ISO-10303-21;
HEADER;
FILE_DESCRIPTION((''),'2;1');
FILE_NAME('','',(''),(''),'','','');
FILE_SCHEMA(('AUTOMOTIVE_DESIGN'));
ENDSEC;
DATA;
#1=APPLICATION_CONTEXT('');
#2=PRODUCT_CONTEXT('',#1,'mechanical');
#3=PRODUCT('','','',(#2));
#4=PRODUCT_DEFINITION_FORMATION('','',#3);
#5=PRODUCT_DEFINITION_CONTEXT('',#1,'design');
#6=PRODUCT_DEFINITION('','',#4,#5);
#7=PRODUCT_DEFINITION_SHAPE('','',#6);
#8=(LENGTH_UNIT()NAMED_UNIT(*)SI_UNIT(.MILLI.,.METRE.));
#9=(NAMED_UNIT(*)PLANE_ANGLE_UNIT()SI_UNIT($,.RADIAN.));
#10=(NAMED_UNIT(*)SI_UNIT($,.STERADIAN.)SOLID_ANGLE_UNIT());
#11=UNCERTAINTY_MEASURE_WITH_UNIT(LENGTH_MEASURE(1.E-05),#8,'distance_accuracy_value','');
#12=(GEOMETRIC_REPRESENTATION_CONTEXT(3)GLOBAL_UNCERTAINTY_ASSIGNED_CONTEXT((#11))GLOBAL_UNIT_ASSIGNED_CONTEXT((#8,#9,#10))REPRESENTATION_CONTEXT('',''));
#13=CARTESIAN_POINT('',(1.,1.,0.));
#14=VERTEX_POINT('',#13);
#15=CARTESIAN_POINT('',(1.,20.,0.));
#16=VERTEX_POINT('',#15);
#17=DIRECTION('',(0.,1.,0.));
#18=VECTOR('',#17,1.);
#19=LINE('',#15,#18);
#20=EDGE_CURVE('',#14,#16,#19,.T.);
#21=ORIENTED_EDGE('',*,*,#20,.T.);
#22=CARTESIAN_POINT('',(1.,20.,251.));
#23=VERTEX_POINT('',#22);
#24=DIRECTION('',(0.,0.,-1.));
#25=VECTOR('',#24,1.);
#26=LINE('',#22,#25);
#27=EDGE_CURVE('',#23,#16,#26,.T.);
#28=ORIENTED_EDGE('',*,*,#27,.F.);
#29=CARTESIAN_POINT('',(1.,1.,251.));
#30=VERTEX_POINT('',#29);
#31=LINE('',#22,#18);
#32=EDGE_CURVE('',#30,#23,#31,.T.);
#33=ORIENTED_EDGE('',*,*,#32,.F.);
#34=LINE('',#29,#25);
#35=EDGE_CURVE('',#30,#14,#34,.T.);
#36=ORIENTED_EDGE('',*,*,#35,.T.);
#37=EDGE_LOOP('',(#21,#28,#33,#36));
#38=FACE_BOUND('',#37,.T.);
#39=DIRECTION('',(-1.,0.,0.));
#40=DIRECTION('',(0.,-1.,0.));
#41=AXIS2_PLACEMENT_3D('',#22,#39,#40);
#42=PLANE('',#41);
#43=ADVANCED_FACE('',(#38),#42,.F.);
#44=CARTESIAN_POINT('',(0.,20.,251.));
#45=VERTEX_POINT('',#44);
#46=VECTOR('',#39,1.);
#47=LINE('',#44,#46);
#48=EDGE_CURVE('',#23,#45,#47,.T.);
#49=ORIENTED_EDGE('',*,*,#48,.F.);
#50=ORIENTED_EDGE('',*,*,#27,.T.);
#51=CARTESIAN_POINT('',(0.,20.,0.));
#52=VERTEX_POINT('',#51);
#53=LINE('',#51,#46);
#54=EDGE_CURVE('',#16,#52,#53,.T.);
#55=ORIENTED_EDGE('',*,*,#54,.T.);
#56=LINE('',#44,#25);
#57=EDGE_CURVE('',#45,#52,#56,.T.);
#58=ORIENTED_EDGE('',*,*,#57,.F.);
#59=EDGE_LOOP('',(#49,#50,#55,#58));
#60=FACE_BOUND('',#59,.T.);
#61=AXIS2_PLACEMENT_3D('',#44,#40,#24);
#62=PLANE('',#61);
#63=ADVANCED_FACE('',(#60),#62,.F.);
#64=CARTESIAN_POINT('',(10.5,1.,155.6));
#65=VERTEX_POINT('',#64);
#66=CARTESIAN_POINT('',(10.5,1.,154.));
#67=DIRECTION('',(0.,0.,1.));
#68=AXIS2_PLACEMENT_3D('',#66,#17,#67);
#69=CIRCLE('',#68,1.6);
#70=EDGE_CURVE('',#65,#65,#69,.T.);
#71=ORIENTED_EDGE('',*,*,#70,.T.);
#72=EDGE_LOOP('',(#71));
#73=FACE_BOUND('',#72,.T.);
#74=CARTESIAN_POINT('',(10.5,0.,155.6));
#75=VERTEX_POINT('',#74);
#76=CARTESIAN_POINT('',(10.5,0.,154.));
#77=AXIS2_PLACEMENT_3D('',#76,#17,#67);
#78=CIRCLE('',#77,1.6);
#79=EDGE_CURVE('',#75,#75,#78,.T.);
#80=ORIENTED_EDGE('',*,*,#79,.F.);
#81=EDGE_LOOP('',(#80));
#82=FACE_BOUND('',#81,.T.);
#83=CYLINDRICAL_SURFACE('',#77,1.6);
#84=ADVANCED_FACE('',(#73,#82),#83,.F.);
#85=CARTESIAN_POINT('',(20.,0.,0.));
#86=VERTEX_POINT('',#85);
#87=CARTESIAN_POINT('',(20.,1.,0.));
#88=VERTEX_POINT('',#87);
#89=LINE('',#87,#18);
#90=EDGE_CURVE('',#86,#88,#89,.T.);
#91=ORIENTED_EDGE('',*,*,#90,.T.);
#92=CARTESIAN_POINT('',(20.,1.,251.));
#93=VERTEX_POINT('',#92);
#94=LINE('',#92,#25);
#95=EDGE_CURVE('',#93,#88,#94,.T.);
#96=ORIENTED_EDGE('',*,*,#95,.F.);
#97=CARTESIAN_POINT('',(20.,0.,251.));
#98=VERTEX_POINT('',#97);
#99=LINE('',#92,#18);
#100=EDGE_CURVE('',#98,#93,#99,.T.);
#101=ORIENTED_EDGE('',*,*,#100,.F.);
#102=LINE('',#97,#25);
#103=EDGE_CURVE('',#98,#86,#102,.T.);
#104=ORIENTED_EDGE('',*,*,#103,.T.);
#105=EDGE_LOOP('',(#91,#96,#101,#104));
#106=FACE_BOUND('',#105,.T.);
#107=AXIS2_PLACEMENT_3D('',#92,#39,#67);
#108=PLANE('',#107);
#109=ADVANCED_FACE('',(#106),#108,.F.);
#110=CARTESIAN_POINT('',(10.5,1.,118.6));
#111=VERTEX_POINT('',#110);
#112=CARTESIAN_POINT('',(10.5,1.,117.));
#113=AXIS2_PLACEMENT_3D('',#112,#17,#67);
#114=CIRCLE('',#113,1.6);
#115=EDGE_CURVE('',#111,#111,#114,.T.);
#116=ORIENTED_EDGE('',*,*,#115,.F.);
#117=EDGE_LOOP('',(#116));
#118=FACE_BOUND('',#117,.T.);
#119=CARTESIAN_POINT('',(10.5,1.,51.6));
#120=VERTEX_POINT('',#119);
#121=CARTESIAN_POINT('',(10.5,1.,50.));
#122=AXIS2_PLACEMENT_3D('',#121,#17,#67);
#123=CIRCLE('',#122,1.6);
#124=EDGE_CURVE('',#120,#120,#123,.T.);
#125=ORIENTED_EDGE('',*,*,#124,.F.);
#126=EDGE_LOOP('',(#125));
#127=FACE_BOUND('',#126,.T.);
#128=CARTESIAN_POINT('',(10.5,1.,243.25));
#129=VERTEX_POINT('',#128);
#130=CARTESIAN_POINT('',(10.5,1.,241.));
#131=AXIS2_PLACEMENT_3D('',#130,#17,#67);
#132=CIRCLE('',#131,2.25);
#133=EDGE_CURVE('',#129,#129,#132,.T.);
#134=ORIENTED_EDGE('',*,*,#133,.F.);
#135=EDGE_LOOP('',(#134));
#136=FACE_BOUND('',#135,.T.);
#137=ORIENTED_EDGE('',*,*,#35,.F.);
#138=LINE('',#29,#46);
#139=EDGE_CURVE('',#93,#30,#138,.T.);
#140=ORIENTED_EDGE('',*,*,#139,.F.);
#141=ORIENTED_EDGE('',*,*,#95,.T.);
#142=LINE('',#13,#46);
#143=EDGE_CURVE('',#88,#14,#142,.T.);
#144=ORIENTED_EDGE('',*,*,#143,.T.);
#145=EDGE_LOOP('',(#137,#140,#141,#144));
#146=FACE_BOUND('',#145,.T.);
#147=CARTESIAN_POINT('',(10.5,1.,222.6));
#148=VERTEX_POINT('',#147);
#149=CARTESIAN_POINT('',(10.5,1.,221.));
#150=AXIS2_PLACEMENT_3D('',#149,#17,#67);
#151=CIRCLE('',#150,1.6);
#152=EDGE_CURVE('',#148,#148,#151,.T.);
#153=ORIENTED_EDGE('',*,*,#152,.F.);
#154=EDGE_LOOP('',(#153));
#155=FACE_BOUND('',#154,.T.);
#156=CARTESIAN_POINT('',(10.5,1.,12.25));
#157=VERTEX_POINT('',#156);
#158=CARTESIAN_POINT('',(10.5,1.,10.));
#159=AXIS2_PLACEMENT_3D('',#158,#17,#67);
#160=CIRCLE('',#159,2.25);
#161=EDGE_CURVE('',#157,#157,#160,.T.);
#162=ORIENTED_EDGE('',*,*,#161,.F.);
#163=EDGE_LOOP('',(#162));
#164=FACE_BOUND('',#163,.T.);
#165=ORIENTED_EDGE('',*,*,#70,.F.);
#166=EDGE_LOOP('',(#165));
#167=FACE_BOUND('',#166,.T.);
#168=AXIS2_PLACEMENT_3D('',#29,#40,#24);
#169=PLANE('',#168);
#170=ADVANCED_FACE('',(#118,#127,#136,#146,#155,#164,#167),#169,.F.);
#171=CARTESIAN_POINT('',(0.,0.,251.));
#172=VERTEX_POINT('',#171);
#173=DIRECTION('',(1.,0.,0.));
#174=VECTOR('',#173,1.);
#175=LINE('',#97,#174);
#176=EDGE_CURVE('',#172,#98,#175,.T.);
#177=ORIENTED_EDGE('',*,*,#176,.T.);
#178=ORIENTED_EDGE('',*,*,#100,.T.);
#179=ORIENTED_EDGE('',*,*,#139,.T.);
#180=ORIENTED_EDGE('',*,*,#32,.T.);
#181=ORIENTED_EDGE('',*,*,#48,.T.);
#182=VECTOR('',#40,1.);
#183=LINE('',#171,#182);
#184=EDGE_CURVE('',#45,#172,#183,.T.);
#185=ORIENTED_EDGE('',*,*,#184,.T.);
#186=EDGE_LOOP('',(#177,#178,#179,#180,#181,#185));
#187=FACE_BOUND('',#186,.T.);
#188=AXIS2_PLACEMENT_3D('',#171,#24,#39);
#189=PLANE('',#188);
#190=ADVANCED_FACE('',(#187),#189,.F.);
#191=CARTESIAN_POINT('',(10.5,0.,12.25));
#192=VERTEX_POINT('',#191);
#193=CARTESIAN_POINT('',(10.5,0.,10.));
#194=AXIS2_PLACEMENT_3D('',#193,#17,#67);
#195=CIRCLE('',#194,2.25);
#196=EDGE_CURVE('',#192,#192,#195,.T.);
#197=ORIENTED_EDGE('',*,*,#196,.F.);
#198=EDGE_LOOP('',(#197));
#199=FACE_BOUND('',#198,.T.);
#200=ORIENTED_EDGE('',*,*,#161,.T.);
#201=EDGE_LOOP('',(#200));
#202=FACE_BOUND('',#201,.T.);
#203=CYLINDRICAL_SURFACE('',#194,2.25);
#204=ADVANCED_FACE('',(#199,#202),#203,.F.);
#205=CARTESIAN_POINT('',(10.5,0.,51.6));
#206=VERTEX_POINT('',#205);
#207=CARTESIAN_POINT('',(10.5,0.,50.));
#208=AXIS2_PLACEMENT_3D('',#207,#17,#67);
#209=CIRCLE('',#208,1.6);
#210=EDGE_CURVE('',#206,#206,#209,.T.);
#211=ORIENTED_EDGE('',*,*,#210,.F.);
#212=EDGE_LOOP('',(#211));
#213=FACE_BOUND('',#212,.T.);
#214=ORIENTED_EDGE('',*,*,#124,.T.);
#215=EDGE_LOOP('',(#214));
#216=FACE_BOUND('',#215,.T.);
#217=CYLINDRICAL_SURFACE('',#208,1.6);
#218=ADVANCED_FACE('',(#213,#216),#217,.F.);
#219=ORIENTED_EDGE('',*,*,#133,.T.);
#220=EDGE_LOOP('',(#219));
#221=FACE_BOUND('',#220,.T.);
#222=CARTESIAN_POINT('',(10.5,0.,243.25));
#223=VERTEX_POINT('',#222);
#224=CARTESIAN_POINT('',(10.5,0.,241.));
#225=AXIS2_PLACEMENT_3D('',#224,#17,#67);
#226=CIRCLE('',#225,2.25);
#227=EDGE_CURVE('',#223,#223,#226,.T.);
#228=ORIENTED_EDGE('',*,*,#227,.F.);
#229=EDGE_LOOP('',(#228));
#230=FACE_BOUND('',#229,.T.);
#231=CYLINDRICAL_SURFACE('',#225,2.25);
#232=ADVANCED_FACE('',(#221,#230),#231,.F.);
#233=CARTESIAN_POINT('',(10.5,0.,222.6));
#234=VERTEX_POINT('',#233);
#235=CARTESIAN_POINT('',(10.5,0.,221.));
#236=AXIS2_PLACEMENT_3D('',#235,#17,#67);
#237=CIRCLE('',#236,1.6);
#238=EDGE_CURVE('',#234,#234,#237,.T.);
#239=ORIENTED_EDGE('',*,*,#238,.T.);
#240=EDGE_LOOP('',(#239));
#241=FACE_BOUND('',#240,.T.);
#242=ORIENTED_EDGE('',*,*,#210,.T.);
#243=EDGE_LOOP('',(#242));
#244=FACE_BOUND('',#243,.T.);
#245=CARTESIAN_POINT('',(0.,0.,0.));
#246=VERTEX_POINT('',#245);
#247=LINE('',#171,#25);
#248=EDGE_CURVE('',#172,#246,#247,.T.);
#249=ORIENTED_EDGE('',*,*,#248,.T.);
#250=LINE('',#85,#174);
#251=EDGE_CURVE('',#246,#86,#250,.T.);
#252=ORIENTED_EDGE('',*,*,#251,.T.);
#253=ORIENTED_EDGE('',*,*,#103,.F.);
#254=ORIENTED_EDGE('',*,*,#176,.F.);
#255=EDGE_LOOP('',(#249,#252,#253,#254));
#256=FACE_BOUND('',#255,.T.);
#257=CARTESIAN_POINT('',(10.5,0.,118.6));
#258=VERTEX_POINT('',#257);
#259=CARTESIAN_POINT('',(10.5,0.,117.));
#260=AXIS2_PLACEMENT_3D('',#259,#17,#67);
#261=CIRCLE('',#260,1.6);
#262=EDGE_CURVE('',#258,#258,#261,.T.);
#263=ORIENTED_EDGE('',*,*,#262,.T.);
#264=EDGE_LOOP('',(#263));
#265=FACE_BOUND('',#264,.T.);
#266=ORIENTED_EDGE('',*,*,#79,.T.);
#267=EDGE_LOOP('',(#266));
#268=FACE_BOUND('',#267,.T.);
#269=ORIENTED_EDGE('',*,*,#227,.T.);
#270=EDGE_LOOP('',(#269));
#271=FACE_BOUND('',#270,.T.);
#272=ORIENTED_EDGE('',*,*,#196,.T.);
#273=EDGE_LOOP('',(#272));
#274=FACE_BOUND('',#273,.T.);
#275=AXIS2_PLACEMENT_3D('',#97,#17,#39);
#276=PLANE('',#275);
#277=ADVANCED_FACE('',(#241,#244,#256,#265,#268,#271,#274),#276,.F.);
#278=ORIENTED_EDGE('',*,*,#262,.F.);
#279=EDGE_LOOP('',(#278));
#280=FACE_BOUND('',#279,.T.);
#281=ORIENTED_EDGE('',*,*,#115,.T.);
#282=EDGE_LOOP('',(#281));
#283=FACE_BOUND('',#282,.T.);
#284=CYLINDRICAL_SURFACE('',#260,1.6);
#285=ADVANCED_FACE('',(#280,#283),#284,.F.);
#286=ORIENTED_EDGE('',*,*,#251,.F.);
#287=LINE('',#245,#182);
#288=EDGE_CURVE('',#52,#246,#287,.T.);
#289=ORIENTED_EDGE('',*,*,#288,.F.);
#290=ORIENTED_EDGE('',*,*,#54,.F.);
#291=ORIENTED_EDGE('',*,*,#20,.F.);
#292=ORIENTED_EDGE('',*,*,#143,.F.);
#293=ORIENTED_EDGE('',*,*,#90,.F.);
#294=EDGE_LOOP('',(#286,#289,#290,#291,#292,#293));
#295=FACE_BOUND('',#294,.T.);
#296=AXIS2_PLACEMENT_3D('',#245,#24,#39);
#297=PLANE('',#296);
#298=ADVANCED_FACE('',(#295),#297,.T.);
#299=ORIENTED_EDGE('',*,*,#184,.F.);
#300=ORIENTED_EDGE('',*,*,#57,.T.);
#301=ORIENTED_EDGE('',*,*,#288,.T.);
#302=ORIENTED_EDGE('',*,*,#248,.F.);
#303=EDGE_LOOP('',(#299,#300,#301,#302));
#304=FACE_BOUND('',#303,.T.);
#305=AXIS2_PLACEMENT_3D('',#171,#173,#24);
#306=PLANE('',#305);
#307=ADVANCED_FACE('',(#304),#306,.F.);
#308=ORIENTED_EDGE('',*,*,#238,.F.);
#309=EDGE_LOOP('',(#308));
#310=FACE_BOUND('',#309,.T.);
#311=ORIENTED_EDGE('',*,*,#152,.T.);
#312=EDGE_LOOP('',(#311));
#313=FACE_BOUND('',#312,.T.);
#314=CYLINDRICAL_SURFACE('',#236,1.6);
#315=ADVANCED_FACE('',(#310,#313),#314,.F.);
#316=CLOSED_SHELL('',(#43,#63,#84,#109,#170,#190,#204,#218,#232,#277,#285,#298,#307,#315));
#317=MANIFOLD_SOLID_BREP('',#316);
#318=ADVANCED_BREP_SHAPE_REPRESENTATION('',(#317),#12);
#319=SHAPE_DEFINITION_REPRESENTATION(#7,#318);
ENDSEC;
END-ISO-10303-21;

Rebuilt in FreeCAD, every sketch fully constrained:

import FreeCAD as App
import Part
import Sketcher

V = App.Vector


def add_polygon(sketch, points):
    """Adds a closed chain of lines whose ends are joined by coincident constraints."""
    first, n = sketch.GeometryCount, len(points)
    for a, b in zip(points, points[1:] + points[:1]):
        sketch.addGeometry(Part.LineSegment(App.Vector(*a, 0), App.Vector(*b, 0)), False)
    for i in range(n):
        sketch.addConstraint(Sketcher.Constraint("Coincident", first + i, 2, first + (i + 1) % n, 1))

doc = App.newDocument("Part")
body = doc.addObject("PartDesign::Body", "Body")

# Sketch on XY plane
sketch1 = body.newObject("Sketcher::SketchObject", "Sketch")
sketch1.AttachmentSupport = (doc.getObject("XY_Plane"), [""])
sketch1.MapMode = "FlatFace"
add_polygon(sketch1, [(0, 20), (0, 0), (20, 0), (20, 1), (1, 1), (1, 20)])  # lines 0-5
sketch1.addConstraint([
    Sketcher.Constraint("Vertical", 0),
    Sketcher.Constraint("Horizontal", 1),
    Sketcher.Constraint("Vertical", 2),
    Sketcher.Constraint("Horizontal", 3),
    Sketcher.Constraint("Vertical", 4),
    Sketcher.Constraint("Horizontal", 5),
    Sketcher.Constraint("Coincident", 0, 2, -1, 1),
    Sketcher.Constraint("Equal", 1, 0),
    Sketcher.Constraint("Equal", 5, 2),
    Sketcher.Constraint("DistanceX", 1, 1, 1, 2, 20.0),
    Sketcher.Constraint("DistanceX", 3, 2, 3, 1, 19.0),
])
pad1 = body.newObject("PartDesign::Pad", "Pad")
pad1.Profile = sketch1
pad1.Length = 251

# Sketch on XZ plane
sketch2 = body.newObject("Sketcher::SketchObject", "Sketch001")
sketch2.AttachmentSupport = (doc.getObject("XZ_Plane"), [""])
sketch2.MapMode = "FlatFace"
sketch2.AttachmentOffset = App.Placement(V(0, 0, -1), App.Rotation())
sketch2.addGeometry([
    Part.Circle(V(10.5, 50, 0), V(0, 0, 1), 1.6),
    Part.Circle(V(10.5, 117, 0), V(0, 0, 1), 1.6),
    Part.Circle(V(10.5, 221, 0), V(0, 0, 1), 1.6),
    Part.Circle(V(10.5, 154, 0), V(0, 0, 1), 1.6),
], False)
sketch2.addConstraint([
    Sketcher.Constraint("Equal", 0, 1),
    Sketcher.Constraint("Equal", 1, 2),
    Sketcher.Constraint("Equal", 2, 3),
    Sketcher.Constraint("Vertical", 0, 3, 1, 3),
    Sketcher.Constraint("Vertical", 1, 3, 2, 3),
    Sketcher.Constraint("Vertical", 2, 3, 3, 3),
    Sketcher.Constraint("Diameter", 0, 3.2),
    Sketcher.Constraint("DistanceY", -1, 1, 0, 3, 50.0),
    Sketcher.Constraint("DistanceY", -1, 1, 1, 3, 117.0),
    Sketcher.Constraint("DistanceY", -1, 1, 2, 3, 221.0),
    Sketcher.Constraint("DistanceY", -1, 1, 3, 3, 154.0),
    Sketcher.Constraint("DistanceX", -1, 1, 0, 3, 10.5),
])
pocket1 = body.newObject("PartDesign::Pocket", "Pocket")
pocket1.Profile = sketch2
pocket1.Type = "ThroughAll"
pocket1.Reversed = True

# Sketch on XZ plane
sketch3 = body.newObject("Sketcher::SketchObject", "Sketch002")
sketch3.AttachmentSupport = (doc.getObject("XZ_Plane"), [""])
sketch3.MapMode = "FlatFace"
sketch3.AttachmentOffset = App.Placement(V(0, 0, -1), App.Rotation())
sketch3.addGeometry([
    Part.Circle(V(10.5, 241, 0), V(0, 0, 1), 2.2),
    Part.Circle(V(10.5, 10, 0), V(0, 0, 1), 2.2),
], False)
sketch3.addConstraint([
    Sketcher.Constraint("Equal", 0, 1),
    Sketcher.Constraint("Vertical", 0, 3, 1, 3),
    Sketcher.Constraint("Diameter", 0, 4.5),
    Sketcher.Constraint("DistanceY", -1, 1, 0, 3, 241.0),
    Sketcher.Constraint("DistanceY", -1, 1, 1, 3, 10.0),
    Sketcher.Constraint("DistanceX", -1, 1, 0, 3, 10.5),
])
pocket2 = body.newObject("PartDesign::Pocket", "Pocket001")
pocket2.Profile = sketch3
pocket2.Type = "ThroughAll"
pocket2.Reversed = True

doc.recompute()
